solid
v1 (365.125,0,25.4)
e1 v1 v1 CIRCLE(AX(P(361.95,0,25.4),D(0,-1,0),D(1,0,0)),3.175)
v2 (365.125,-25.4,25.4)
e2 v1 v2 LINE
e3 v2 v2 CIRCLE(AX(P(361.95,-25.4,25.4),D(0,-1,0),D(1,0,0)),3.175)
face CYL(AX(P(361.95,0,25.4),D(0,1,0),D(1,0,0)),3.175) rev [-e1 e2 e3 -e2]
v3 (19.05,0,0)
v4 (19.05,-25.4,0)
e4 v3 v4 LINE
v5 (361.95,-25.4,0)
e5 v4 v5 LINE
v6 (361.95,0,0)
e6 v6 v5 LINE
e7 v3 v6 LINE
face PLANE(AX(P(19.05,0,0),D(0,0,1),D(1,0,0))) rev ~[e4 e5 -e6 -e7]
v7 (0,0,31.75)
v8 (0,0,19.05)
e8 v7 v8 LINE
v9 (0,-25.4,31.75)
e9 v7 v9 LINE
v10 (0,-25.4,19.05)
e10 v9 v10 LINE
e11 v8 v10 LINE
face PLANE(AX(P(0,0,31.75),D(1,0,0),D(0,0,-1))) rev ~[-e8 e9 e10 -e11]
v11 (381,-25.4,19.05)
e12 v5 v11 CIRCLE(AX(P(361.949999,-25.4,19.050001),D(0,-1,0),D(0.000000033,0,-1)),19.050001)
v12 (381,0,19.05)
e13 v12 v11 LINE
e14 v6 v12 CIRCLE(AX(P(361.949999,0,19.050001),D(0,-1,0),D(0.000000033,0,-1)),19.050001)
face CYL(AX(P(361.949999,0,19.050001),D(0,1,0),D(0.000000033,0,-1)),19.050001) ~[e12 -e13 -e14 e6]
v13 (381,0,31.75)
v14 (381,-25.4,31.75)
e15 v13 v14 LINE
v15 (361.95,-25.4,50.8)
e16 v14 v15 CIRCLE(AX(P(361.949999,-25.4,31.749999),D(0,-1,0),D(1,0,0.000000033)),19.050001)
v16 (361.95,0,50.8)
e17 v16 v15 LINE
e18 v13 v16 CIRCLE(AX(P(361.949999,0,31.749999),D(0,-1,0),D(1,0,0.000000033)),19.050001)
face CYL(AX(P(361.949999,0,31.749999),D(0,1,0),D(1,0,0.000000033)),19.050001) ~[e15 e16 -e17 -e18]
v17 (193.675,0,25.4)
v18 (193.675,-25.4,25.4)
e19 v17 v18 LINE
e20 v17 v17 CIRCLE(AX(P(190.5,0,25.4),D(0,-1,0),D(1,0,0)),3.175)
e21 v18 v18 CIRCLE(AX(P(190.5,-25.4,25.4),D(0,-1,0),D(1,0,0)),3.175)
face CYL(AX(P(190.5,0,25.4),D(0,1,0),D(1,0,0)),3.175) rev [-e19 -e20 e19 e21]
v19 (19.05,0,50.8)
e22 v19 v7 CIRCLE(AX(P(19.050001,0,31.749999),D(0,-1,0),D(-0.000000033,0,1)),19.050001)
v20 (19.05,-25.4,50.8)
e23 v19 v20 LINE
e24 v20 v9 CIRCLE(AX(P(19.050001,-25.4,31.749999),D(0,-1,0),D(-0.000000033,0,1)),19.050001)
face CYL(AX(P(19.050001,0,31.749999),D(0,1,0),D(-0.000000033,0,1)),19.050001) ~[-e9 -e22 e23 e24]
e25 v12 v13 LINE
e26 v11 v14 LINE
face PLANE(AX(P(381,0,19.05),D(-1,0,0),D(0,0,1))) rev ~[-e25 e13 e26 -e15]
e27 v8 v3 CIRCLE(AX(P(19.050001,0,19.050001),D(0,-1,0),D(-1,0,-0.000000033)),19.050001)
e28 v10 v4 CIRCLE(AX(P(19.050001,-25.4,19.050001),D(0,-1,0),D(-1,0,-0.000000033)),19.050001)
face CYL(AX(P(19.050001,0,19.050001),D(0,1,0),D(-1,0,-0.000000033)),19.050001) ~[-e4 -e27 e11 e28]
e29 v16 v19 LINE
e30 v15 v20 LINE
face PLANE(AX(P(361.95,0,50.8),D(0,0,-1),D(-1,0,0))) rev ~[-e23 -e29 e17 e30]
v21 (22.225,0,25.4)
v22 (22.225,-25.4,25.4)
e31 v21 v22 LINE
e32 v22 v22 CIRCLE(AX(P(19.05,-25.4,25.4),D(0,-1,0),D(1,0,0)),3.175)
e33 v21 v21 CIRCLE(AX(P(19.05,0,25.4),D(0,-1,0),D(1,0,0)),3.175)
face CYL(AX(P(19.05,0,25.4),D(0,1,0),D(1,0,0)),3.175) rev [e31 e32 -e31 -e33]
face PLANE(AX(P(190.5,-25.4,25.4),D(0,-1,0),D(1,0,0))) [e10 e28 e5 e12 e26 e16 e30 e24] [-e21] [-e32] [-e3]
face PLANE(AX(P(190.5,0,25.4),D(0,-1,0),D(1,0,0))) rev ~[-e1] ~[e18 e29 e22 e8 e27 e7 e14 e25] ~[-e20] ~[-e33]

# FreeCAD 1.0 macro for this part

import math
import FreeCAD as App
import Part
import Sketcher
Q = App.Units.Quantity

doc = App.newDocument("Part")
body = doc.addObject("PartDesign::Body", "Body")

sketch1 = doc.addObject("Sketcher::SketchObject", "Sketch")
body.addObject(sketch1)
sketch1.AttachmentSupport = (doc.XZ_Plane, [""])
sketch1.MapMode = "FlatFace"
sketch1.addGeometry([
    Part.LineSegment(App.Vector(0, 31.75, 0), App.Vector(0, 19.05, 0)),
    Part.ArcOfCircle(Part.Circle(App.Vector(19.050001, 19.050001, 0), App.Vector(0, 0, 1), 19.050001), math.radians(-179.999998), math.radians(-90.000002)),
    Part.LineSegment(App.Vector(19.05, 0, 0), App.Vector(361.95, 0, 0)),
    Part.ArcOfCircle(Part.Circle(App.Vector(361.949999, 19.050001, 0), App.Vector(0, 0, 1), 19.050001), math.radians(-89.999998), math.radians(-0.000002)),
    Part.LineSegment(App.Vector(381, 19.05, 0), App.Vector(381, 31.75, 0)),
    Part.ArcOfCircle(Part.Circle(App.Vector(361.949999, 31.749999, 0), App.Vector(0, 0, 1), 19.050001), math.radians(0.000002), math.radians(89.999998)),
    Part.LineSegment(App.Vector(361.95, 50.8, 0), App.Vector(19.05, 50.8, 0)),
    Part.ArcOfCircle(Part.Circle(App.Vector(19.050001, 31.749999, 0), App.Vector(0, 0, 1), 19.050001), math.radians(90.000002), math.radians(179.999998)),
    Part.Circle(App.Vector(19.05, 25.4, 0), App.Vector(0, 0, 1), 3.175),
    Part.Circle(App.Vector(190.5, 25.4, 0), App.Vector(0, 0, 1), 3.175),
    Part.Circle(App.Vector(361.95, 25.4, 0), App.Vector(0, 0, 1), 3.175),
], False)
sketch1.addConstraint([
    Sketcher.Constraint("Tangent", 0, 2, 1, 1),
    Sketcher.Constraint("Tangent", 1, 2, 2, 1),
    Sketcher.Constraint("Tangent", 2, 2, 3, 1),
    Sketcher.Constraint("Tangent", 3, 2, 4, 1),
    Sketcher.Constraint("Tangent", 4, 2, 5, 1),
    Sketcher.Constraint("Tangent", 5, 2, 6, 1),
    Sketcher.Constraint("Tangent", 6, 2, 7, 1),
    Sketcher.Constraint("Tangent", 7, 2, 0, 1),
    Sketcher.Constraint("Vertical", 0),
    Sketcher.Constraint("Horizontal", 2),
    Sketcher.Constraint("Vertical", 4),
    Sketcher.Constraint("Horizontal", 6),
    Sketcher.Constraint("Equal", 1, 3),
    Sketcher.Constraint("Equal", 3, 5),
    Sketcher.Constraint("Equal", 5, 7),
    Sketcher.Constraint("Equal", 8, 9),
    Sketcher.Constraint("Equal", 9, 10),
    Sketcher.Constraint("PointOnObject", 0, 2, -2),
    Sketcher.Constraint("PointOnObject", 1, 2, -1),
    Sketcher.Constraint("Horizontal", 8, 3, 9, 3),
    Sketcher.Constraint("Horizontal", 9, 3, 10, 3),
    Sketcher.Constraint("Vertical", 7, 3, 8, 3),
    Sketcher.Constraint("Vertical", 5, 3, 10, 3),
    Sketcher.Constraint("Diameter", 8, Q("0.25 in")),
    Sketcher.Constraint("Radius", 1, Q("0.75 in")),
    Sketcher.Constraint("DistanceX", 2, 1, 2, 2, Q("13.5 in")),
    Sketcher.Constraint("DistanceY", 0, 2, 0, 1, Q("0.5 in")),
    Sketcher.Constraint("DistanceY", -1, 1, 8, 3, Q("1 in")),
    Sketcher.Constraint("DistanceX", -1, 1, 9, 3, Q("7.5 in")),
])
pad1 = doc.addObject("PartDesign::Pad", "Pad")
body.addObject(pad1)
pad1.Profile = sketch1
pad1.Length = Q("1 in")

doc.recompute()
